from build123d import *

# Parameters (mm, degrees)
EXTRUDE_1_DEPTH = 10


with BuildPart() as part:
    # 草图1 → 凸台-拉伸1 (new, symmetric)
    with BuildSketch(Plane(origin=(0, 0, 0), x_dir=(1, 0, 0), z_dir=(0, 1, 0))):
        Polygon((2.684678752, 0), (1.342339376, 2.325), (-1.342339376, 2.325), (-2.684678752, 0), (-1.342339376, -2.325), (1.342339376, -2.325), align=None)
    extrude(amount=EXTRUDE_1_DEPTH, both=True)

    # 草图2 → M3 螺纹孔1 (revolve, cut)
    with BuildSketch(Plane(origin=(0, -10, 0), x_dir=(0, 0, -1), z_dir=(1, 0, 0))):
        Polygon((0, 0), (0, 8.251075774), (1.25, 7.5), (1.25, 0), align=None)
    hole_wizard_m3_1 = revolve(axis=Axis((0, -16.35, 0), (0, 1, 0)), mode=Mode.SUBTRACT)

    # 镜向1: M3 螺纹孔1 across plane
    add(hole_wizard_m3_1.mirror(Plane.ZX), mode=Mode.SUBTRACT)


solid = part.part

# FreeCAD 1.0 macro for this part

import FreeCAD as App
import Part
import Sketcher

V = App.Vector
Q = App.Units.Quantity

doc = App.newDocument("Part")
body = doc.addObject("PartDesign::Body", "Body")

# Sketch on XZ plane
sketch1 = body.newObject("Sketcher::SketchObject", "Sketch")
sketch1.AttachmentSupport = (doc.getObject("XZ_Plane"), [""])
sketch1.MapMode = "FlatFace"
sketch1.addGeometry([
    Part.LineSegment(V(2.7, 0, 0), V(1.3, -2.3, 0)),  # 0
    Part.LineSegment(V(1.3, -2.3, 0), V(-1.3, -2.3, 0)),  # 1
    Part.LineSegment(V(-1.3, -2.3, 0), V(-2.7, 0, 0)),  # 2
    Part.LineSegment(V(-2.7, 0, 0), V(-1.3, 2.3, 0)),  # 3
    Part.LineSegment(V(-1.3, 2.3, 0), V(1.3, 2.3, 0)),  # 4
    Part.LineSegment(V(1.3, 2.3, 0), V(2.7, 0, 0)),  # 5
], False)
sketch1.addConstraint([
    Sketcher.Constraint("Coincident", 0, 2, 1, 1),
    Sketcher.Constraint("Coincident", 1, 2, 2, 1),
    Sketcher.Constraint("Coincident", 2, 2, 3, 1),
    Sketcher.Constraint("Coincident", 3, 2, 4, 1),
    Sketcher.Constraint("Coincident", 4, 2, 5, 1),
    Sketcher.Constraint("Coincident", 5, 2, 0, 1),
    Sketcher.Constraint("Horizontal", 1),
    Sketcher.Constraint("Horizontal", 4),
    Sketcher.Constraint("Symmetric", 0, 2, 3, 2, -1, 1),
    Sketcher.Constraint("Symmetric", 2, 2, 5, 2, -1, 1),
    Sketcher.Constraint("PointOnObject", 2, 2, -1),
    Sketcher.Constraint("Parallel", 2, 5),
    Sketcher.Constraint("Vertical", 1, 2, 3, 2),
    Sketcher.Constraint("Angle", 0, Q("-120 deg")),
    Sketcher.Constraint("DistanceY", 1, 2, 3, 2, Q("4.65 mm")),
    Sketcher.Constraint("DistanceX", 1, 2, 1, 1, Q("2.684679 mm")),
])
pad1 = body.newObject("PartDesign::Pad", "Pad")
pad1.Profile = sketch1
pad1.Length = 20
pad1.Midplane = True

# Sketch on YZ plane
sketch2 = body.newObject("Sketcher::SketchObject", "Sketch001")
sketch2.AttachmentSupport = (doc.getObject("YZ_Plane"), [""])
sketch2.MapMode = "FlatFace"
sketch2.addGeometry([
    Part.LineSegment(V(-1.7, 0, 0), V(-10, 0, 0)),
    Part.LineSegment(V(-10, 0, 0), V(-10, -1.2, 0)),
    Part.LineSegment(V(-10, -1.2, 0), V(-2.5, -1.2, 0)),
    Part.LineSegment(V(-2.5, -1.2, 0), V(-1.7, 0, 0)),
], False)
sketch2.addConstraint([
    Sketcher.Constraint("Coincident", 0, 2, 1, 1),
    Sketcher.Constraint("Coincident", 1, 2, 2, 1),
    Sketcher.Constraint("Coincident", 2, 2, 3, 1),
    Sketcher.Constraint("Coincident", 3, 2, 0, 1),
    Sketcher.Constraint("Horizontal", 0),
    Sketcher.Constraint("Vertical", 1),
    Sketcher.Constraint("Horizontal", 2),
    Sketcher.Constraint("PointOnObject", 0, 2, -1),
    Sketcher.Constraint("Angle", 3, Q("59 deg")),
    Sketcher.Constraint("DistanceX", 2, 1, 2, 2, Q("7.5 mm")),
    Sketcher.Constraint("DistanceX", 0, 2, -1, 1, Q("10 mm")),
    Sketcher.Constraint("DistanceY", 1, 2, 1, 1, Q("1.25 mm")),
])
groove = body.newObject("PartDesign::Groove", "Groove")
groove.Profile = sketch2
groove.ReferenceAxis = (sketch2, ["H_Axis"])
groove.Angle = 360
doc.recompute()

mirrored = body.newObject("PartDesign::Mirrored", "Mirrored")
mirrored.Originals = [groove]
mirrored.MirrorPlane = (doc.getObject("XZ_Plane"), [""])
body.Tip = mirrored

doc.recompute()
